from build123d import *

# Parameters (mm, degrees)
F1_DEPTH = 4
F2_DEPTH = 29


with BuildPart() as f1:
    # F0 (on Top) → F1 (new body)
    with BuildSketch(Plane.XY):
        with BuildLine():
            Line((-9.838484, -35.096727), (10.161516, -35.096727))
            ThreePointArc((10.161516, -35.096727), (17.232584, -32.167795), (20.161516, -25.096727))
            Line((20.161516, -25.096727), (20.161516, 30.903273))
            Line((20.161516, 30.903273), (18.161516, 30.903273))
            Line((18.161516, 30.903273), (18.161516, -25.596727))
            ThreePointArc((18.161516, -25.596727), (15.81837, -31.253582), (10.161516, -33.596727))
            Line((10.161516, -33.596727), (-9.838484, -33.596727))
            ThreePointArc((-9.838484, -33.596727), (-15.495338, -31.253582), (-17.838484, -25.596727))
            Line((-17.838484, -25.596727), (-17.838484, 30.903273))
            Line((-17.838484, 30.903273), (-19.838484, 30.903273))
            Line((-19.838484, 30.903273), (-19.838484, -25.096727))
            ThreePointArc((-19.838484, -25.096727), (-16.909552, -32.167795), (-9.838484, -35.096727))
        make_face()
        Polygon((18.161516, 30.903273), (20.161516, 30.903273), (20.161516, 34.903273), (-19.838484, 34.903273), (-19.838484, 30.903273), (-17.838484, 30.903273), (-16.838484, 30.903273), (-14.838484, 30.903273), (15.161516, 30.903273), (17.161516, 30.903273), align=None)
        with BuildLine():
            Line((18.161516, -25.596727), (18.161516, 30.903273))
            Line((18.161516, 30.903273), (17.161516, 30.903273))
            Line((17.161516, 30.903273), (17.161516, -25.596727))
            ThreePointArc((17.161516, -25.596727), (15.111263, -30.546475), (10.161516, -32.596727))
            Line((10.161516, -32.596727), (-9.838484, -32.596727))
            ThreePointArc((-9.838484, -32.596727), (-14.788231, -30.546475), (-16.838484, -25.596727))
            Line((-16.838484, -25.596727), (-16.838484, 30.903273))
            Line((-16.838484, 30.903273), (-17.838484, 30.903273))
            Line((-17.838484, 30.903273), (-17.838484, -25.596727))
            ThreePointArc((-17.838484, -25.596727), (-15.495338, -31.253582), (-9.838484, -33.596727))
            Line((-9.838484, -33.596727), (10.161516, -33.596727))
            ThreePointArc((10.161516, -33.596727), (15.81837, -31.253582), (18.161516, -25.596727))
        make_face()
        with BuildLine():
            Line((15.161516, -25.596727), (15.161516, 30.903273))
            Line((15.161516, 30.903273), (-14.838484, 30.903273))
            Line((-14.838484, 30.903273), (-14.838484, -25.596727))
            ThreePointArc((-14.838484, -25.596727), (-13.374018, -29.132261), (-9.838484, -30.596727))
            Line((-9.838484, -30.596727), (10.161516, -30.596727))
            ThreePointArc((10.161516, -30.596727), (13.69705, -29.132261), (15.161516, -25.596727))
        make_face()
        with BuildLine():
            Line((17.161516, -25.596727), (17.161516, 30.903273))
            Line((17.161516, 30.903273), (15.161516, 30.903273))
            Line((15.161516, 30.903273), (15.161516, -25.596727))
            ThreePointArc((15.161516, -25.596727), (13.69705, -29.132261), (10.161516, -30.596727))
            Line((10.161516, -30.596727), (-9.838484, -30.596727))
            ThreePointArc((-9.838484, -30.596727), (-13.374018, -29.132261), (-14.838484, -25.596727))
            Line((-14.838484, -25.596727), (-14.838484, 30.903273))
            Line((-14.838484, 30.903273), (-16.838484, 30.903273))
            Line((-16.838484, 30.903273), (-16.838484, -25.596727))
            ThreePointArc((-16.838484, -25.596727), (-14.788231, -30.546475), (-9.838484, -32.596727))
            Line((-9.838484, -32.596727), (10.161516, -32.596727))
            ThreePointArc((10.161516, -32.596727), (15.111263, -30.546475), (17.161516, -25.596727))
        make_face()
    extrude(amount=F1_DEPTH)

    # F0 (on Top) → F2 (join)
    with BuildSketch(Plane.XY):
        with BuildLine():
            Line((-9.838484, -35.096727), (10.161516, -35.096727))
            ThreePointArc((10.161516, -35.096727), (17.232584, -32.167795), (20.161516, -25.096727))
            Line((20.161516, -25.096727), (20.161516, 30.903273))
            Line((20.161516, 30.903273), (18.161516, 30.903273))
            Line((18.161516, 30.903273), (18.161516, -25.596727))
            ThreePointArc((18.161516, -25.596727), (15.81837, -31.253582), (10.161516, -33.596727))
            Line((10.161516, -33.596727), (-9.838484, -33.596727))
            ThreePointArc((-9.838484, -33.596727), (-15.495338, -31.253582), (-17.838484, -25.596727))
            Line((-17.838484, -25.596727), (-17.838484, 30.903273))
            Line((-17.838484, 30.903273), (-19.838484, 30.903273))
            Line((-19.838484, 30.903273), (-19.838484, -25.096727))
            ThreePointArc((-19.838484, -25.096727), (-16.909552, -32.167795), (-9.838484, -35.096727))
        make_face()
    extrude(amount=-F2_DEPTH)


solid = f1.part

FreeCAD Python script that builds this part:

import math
import FreeCAD as App
import Part
import Sketcher

V = App.Vector

doc = App.newDocument("Part")
body = doc.addObject("PartDesign::Body", "Body")

sketch1 = body.newObject("Sketcher::SketchObject", "Sketch")
sketch1.AttachmentSupport = (doc.getObject("XY_Plane"), [""])
sketch1.MapMode = "FlatFace"
sketch1.addGeometry(Part.LineSegment(V(-10, -35, 0), V(10, -35, 0)), False)
sketch1.addGeometry(Part.ArcOfCircle(Part.Circle(V(10, -25, 0), V(0, 0, 1), 10), math.radians(-90), math.radians(0)), False)
sketch1.addGeometry(Part.LineSegment(V(20, -25, 0), V(20, 35, 0)), False)
sketch1.addGeometry(Part.LineSegment(V(20, 35, 0), V(-20, 35, 0)), False)
sketch1.addGeometry(Part.LineSegment(V(-20, 35, 0), V(-20, -25, 0)), False)
sketch1.addGeometry(Part.ArcOfCircle(Part.Circle(V(-10, -25, 0), V(0, 0, 1), 10), math.radians(180), math.radians(270)), False)
sketch1.addConstraint(Sketcher.Constraint("Tangent", 0, 2, 1, 1))
sketch1.addConstraint(Sketcher.Constraint("Tangent", 1, 2, 2, 1))
sketch1.addConstraint(Sketcher.Constraint("Coincident", 2, 2, 3, 1))
sketch1.addConstraint(Sketcher.Constraint("Coincident", 3, 2, 4, 1))
sketch1.addConstraint(Sketcher.Constraint("Tangent", 4, 2, 5, 1))
sketch1.addConstraint(Sketcher.Constraint("Tangent", 5, 2, 0, 1))
sketch1.addConstraint(Sketcher.Constraint("Horizontal", 0))
sketch1.addConstraint(Sketcher.Constraint("Vertical", 2))
sketch1.addConstraint(Sketcher.Constraint("Horizontal", 3))
sketch1.addConstraint(Sketcher.Constraint("Vertical", 4))
sketch1.addConstraint(Sketcher.Constraint("Equal", 1, 5))
sketch1.addConstraint(Sketcher.Constraint("Radius", 1, 9.999999))
sketch1.addConstraint(Sketcher.Constraint("DistanceX", 0, 1, 0, 2, 20.0))
sketch1.addConstraint(Sketcher.Constraint("DistanceY", 2, 1, 2, 2, 60.0))
sketch1.addConstraint(Sketcher.Constraint("DistanceX", -1, 1, 1, 3, 10.161517))
sketch1.addConstraint(Sketcher.Constraint("DistanceY", 1, 3, -1, 1, 25.096728))
pad1 = body.newObject("PartDesign::Pad", "Pad")
pad1.Profile = sketch1
pad1.Length = 4

sketch2 = body.newObject("Sketcher::SketchObject", "Sketch001")
sketch2.AttachmentSupport = (doc.getObject("XY_Plane"), [""])
sketch2.MapMode = "FlatFace"
sketch2.addGeometry(Part.LineSegment(V(-9.8, -35.1, 0), V(10.2, -35.1, 0)), False)
sketch2.addGeometry(Part.ArcOfCircle(Part.Circle(V(10.2, -25.1, 0), V(0, 0, 1), 10), math.radians(-90), math.radians(0)), False)
sketch2.addGeometry(Part.LineSegment(V(20.2, -25.1, 0), V(20.2, 30.9, 0)), False)
sketch2.addGeometry(Part.LineSegment(V(20.2, 30.9, 0), V(18.2, 30.9, 0)), False)
sketch2.addGeometry(Part.LineSegment(V(18.2, 30.9, 0), V(18.2, -25.6, 0)), False)
sketch2.addGeometry(Part.ArcOfCircle(Part.Circle(V(10.2, -25.6, 0), V(0, 0, 1), 8), math.radians(-90), math.radians(0)), False)
sketch2.addGeometry(Part.LineSegment(V(10.2, -33.6, 0), V(-9.8, -33.6, 0)), False)
sketch2.addGeometry(Part.ArcOfCircle(Part.Circle(V(-9.8, -25.6, 0), V(0, 0, 1), 8), math.radians(180), math.radians(270)), False)
sketch2.addGeometry(Part.LineSegment(V(-17.8, -25.6, 0), V(-17.8, 30.9, 0)), False)
sketch2.addGeometry(Part.LineSegment(V(-17.8, 30.9, 0), V(-19.8, 30.9, 0)), False)
sketch2.addGeometry(Part.LineSegment(V(-19.8, 30.9, 0), V(-19.8, -25.1, 0)), False)
sketch2.addGeometry(Part.ArcOfCircle(Part.Circle(V(-9.8, -25.1, 0), V(0, 0, 1), 10), math.radians(180), math.radians(270)), False)
sketch2.addConstraint(Sketcher.Constraint("Tangent", 0, 2, 1, 1))
sketch2.addConstraint(Sketcher.Constraint("Tangent", 1, 2, 2, 1))
sketch2.addConstraint(Sketcher.Constraint("Coincident", 2, 2, 3, 1))
sketch2.addConstraint(Sketcher.Constraint("Coincident", 3, 2, 4, 1))
sketch2.addConstraint(Sketcher.Constraint("Tangent", 4, 2, 5, 2))
sketch2.addConstraint(Sketcher.Constraint("Tangent", 5, 1, 6, 1))
sketch2.addConstraint(Sketcher.Constraint("Tangent", 6, 2, 7, 2))
sketch2.addConstraint(Sketcher.Constraint("Tangent", 7, 1, 8, 1))
sketch2.addConstraint(Sketcher.Constraint("Coincident", 8, 2, 9, 1))
sketch2.addConstraint(Sketcher.Constraint("Coincident", 9, 2, 10, 1))
sketch2.addConstraint(Sketcher.Constraint("Tangent", 10, 2, 11, 1))
sketch2.addConstraint(Sketcher.Constraint("Tangent", 11, 2, 0, 1))
sketch2.addConstraint(Sketcher.Constraint("Horizontal", 0))
sketch2.addConstraint(Sketcher.Constraint("Vertical", 2))
sketch2.addConstraint(Sketcher.Constraint("Horizontal", 3))
sketch2.addConstraint(Sketcher.Constraint("Vertical", 4))
sketch2.addConstraint(Sketcher.Constraint("Horizontal", 6))
sketch2.addConstraint(Sketcher.Constraint("Vertical", 8))
sketch2.addConstraint(Sketcher.Constraint("Horizontal", 9))
sketch2.addConstraint(Sketcher.Constraint("Vertical", 10))
sketch2.addConstraint(Sketcher.Constraint("Equal", 5, 7))
sketch2.addConstraint(Sketcher.Constraint("Equal", 1, 11))
sketch2.addConstraint(Sketcher.Constraint("Horizontal", 3, 2, 8, 2))
sketch2.addConstraint(Sketcher.Constraint("Vertical", 1, 3, 5, 3))
sketch2.addConstraint(Sketcher.Constraint("Vertical", 7, 3, 11, 3))
sketch2.addConstraint(Sketcher.Constraint("Radius", 1, 9.999999))
sketch2.addConstraint(Sketcher.Constraint("Radius", 5, 7.999999))
sketch2.addConstraint(Sketcher.Constraint("DistanceX", 0, 1, 0, 2, 20.0))
sketch2.addConstraint(Sketcher.Constraint("DistanceY", 2, 1, 2, 2, 56.0))
sketch2.addConstraint(Sketcher.Constraint("DistanceY", 4, 2, 4, 1, 56.5))
sketch2.addConstraint(Sketcher.Constraint("DistanceX", -1, 1, 1, 3, 10.161517))
sketch2.addConstraint(Sketcher.Constraint("DistanceY", 1, 3, -1, 1, 25.096728))
pad2 = body.newObject("PartDesign::Pad", "Pad001")
pad2.Profile = sketch2
pad2.Length = 29
pad2.Reversed = True

doc.recompute()
